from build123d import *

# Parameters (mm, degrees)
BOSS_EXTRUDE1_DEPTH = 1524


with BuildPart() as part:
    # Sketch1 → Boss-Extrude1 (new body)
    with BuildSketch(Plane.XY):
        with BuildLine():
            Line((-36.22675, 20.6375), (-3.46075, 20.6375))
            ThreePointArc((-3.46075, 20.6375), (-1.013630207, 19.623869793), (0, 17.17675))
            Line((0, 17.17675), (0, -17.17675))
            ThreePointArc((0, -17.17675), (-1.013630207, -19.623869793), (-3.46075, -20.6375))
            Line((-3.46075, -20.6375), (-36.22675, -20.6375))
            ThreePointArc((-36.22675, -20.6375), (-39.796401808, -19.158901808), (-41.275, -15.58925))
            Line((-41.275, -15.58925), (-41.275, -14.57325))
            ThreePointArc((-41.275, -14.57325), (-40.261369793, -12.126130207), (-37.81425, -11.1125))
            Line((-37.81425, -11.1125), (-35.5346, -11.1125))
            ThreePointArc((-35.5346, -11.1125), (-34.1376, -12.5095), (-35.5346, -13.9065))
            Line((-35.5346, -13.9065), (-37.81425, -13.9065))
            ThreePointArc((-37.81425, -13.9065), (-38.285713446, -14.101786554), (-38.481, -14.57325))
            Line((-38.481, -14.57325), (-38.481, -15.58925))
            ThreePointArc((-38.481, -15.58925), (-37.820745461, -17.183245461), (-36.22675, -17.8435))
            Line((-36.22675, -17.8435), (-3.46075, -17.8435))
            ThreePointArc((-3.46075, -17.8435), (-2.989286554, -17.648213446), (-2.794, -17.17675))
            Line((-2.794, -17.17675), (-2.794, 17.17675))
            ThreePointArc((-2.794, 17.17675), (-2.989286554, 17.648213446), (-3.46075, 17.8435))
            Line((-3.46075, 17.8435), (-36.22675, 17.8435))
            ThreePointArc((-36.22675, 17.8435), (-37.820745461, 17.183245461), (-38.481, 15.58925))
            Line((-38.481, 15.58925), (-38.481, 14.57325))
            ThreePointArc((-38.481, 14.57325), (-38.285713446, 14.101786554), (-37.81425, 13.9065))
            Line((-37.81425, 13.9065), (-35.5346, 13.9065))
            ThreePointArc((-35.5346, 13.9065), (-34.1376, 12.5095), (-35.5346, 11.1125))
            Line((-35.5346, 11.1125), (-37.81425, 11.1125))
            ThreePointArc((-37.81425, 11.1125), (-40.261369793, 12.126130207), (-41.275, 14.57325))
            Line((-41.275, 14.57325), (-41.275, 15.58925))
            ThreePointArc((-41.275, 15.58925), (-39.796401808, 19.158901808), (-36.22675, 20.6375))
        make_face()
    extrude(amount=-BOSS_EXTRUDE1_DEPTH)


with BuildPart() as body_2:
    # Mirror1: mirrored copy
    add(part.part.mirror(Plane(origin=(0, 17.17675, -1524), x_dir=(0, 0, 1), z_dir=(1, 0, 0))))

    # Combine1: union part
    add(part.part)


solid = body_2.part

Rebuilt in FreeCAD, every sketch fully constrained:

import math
import FreeCAD as App
import Part
import Sketcher

V = App.Vector
Q = App.Units.Quantity

doc = App.newDocument("Part")
body = doc.addObject("PartDesign::Body", "Body")

sketch1 = body.newObject("Sketcher::SketchObject", "Sketch")
sketch1.AttachmentSupport = (doc.getObject("XY_Plane"), [""])
sketch1.MapMode = "FlatFace"
sketch1.addGeometry(Part.LineSegment(V(-3.5, 20.6, 0), V(-36.2, 20.6, 0)), False)
sketch1.addGeometry(Part.ArcOfCircle(Part.Circle(V(-36.2, 15.6, 0), V(0, 0, 1), 5), math.radians(90), math.radians(180)), False)
sketch1.addGeometry(Part.LineSegment(V(-41.3, 15.6, 0), V(-41.3, 14.6, 0)), False)
sketch1.addGeometry(Part.ArcOfCircle(Part.Circle(V(-37.8, 14.6, 0), V(0, 0, 1), 3.5), math.radians(180), math.radians(270)), False)
sketch1.addGeometry(Part.LineSegment(V(-37.8, 11.1, 0), V(-35.5, 11.1, 0)), False)
sketch1.addGeometry(Part.ArcOfCircle(Part.Circle(V(-35.5, 12.5, 0), V(0, 0, 1), 1.4), math.radians(-90), math.radians(90)), False)
sketch1.addGeometry(Part.LineSegment(V(-35.5, 13.9, 0), V(-37.8, 13.9, 0)), False)
sketch1.addGeometry(Part.ArcOfCircle(Part.Circle(V(-37.8, 14.6, 0), V(0, 0, 1), 0.7), math.radians(-180), math.radians(-90)), False)
sketch1.addGeometry(Part.LineSegment(V(-38.5, 14.6, 0), V(-38.5, 15.6, 0)), False)
sketch1.addGeometry(Part.ArcOfCircle(Part.Circle(V(-36.2, 15.6, 0), V(0, 0, 1), 2.3), math.radians(90), math.radians(180)), False)
sketch1.addGeometry(Part.LineSegment(V(-36.2, 17.8, 0), V(-3.5, 17.8, 0)), False)
sketch1.addGeometry(Part.ArcOfCircle(Part.Circle(V(-3.5, 17.2, 0), V(0, 0, 1), 0.7), math.radians(0), math.radians(90)), False)
sketch1.addGeometry(Part.LineSegment(V(-2.8, 17.2, 0), V(-2.8, -17.2, 0)), False)
sketch1.addGeometry(Part.ArcOfCircle(Part.Circle(V(-3.5, -17.2, 0), V(0, 0, 1), 0.7), math.radians(-90), math.radians(0)), False)
sketch1.addGeometry(Part.LineSegment(V(-3.5, -17.8, 0), V(-36.2, -17.8, 0)), False)
sketch1.addGeometry(Part.ArcOfCircle(Part.Circle(V(-36.2, -15.6, 0), V(0, 0, 1), 2.3), math.radians(-180), math.radians(-90)), False)
sketch1.addGeometry(Part.LineSegment(V(-38.5, -15.6, 0), V(-38.5, -14.6, 0)), False)
sketch1.addGeometry(Part.ArcOfCircle(Part.Circle(V(-37.8, -14.6, 0), V(0, 0, 1), 0.7), math.radians(90), math.radians(180)), False)
sketch1.addGeometry(Part.LineSegment(V(-37.8, -13.9, 0), V(-35.5, -13.9, 0)), False)
sketch1.addGeometry(Part.ArcOfCircle(Part.Circle(V(-35.5, -12.5, 0), V(0, 0, 1), 1.4), math.radians(-90), math.radians(90)), False)
sketch1.addGeometry(Part.LineSegment(V(-35.5, -11.1, 0), V(-37.8, -11.1, 0)), False)
sketch1.addGeometry(Part.ArcOfCircle(Part.Circle(V(-37.8, -14.6, 0), V(0, 0, 1), 3.5), math.radians(90), math.radians(180)), False)
sketch1.addGeometry(Part.LineSegment(V(-41.3, -14.6, 0), V(-41.3, -15.6, 0)), False)
sketch1.addGeometry(Part.ArcOfCircle(Part.Circle(V(-36.2, -15.6, 0), V(0, 0, 1), 5), math.radians(180), math.radians(270)), False)
sketch1.addGeometry(Part.LineSegment(V(-36.2, -20.6, 0), V(-3.5, -20.6, 0)), False)
sketch1.addGeometry(Part.ArcOfCircle(Part.Circle(V(-3.5, -17.2, 0), V(0, 0, 1), 3.5), math.radians(-90), math.radians(0)), False)
sketch1.addGeometry(Part.LineSegment(V(0, -17.2, 0), V(0, 17.2, 0)), False)
sketch1.addGeometry(Part.ArcOfCircle(Part.Circle(V(-3.5, 17.2, 0), V(0, 0, 1), 3.5), math.radians(0), math.radians(90)), False)
sketch1.addConstraint(Sketcher.Constraint("Tangent", 0, 2, 1, 1))
sketch1.addConstraint(Sketcher.Constraint("Tangent", 1, 2, 2, 1))
sketch1.addConstraint(Sketcher.Constraint("Tangent", 2, 2, 3, 1))
sketch1.addConstraint(Sketcher.Constraint("Tangent", 3, 2, 4, 1))
sketch1.addConstraint(Sketcher.Constraint("Tangent", 4, 2, 5, 1))
sketch1.addConstraint(Sketcher.Constraint("Tangent", 5, 2, 6, 1))
sketch1.addConstraint(Sketcher.Constraint("Tangent", 6, 2, 7, 2))
sketch1.addConstraint(Sketcher.Constraint("Tangent", 7, 1, 8, 1))
sketch1.addConstraint(Sketcher.Constraint("Tangent", 8, 2, 9, 2))
sketch1.addConstraint(Sketcher.Constraint("Tangent", 9, 1, 10, 1))
sketch1.addConstraint(Sketcher.Constraint("Tangent", 10, 2, 11, 2))
sketch1.addConstraint(Sketcher.Constraint("Tangent", 11, 1, 12, 1))
sketch1.addConstraint(Sketcher.Constraint("Tangent", 12, 2, 13, 2))
sketch1.addConstraint(Sketcher.Constraint("Tangent", 13, 1, 14, 1))
sketch1.addConstraint(Sketcher.Constraint("Tangent", 14, 2, 15, 2))
sketch1.addConstraint(Sketcher.Constraint("Tangent", 15, 1, 16, 1))
sketch1.addConstraint(Sketcher.Constraint("Tangent", 16, 2, 17, 2))
sketch1.addConstraint(Sketcher.Constraint("Tangent", 17, 1, 18, 1))
sketch1.addConstraint(Sketcher.Constraint("Tangent", 18, 2, 19, 1))
sketch1.addConstraint(Sketcher.Constraint("Tangent", 19, 2, 20, 1))
sketch1.addConstraint(Sketcher.Constraint("Tangent", 20, 2, 21, 1))
sketch1.addConstraint(Sketcher.Constraint("Tangent", 21, 2, 22, 1))
sketch1.addConstraint(Sketcher.Constraint("Tangent", 22, 2, 23, 1))
sketch1.addConstraint(Sketcher.Constraint("Tangent", 23, 2, 24, 1))
sketch1.addConstraint(Sketcher.Constraint("Tangent", 24, 2, 25, 1))
sketch1.addConstraint(Sketcher.Constraint("Tangent", 25, 2, 26, 1))
sketch1.addConstraint(Sketcher.Constraint("Tangent", 26, 2, 27, 1))
sketch1.addConstraint(Sketcher.Constraint("Tangent", 27, 2, 0, 1))
sketch1.addConstraint(Sketcher.Constraint("Horizontal", 0))
sketch1.addConstraint(Sketcher.Constraint("Vertical", 2))
sketch1.addConstraint(Sketcher.Constraint("Horizontal", 4))
sketch1.addConstraint(Sketcher.Constraint("Horizontal", 6))
sketch1.addConstraint(Sketcher.Constraint("Vertical", 8))
sketch1.addConstraint(Sketcher.Constraint("Horizontal", 10))
sketch1.addConstraint(Sketcher.Constraint("Vertical", 12))
sketch1.addConstraint(Sketcher.Constraint("Horizontal", 14))
sketch1.addConstraint(Sketcher.Constraint("Vertical", 16))
sketch1.addConstraint(Sketcher.Constraint("Horizontal", 18))
sketch1.addConstraint(Sketcher.Constraint("Horizontal", 20))
sketch1.addConstraint(Sketcher.Constraint("Vertical", 22))
sketch1.addConstraint(Sketcher.Constraint("Horizontal", 24))
sketch1.addConstraint(Sketcher.Constraint("Vertical", 26))
sketch1.addConstraint(Sketcher.Constraint("Coincident", 7, 3, 3, 3))
sketch1.addConstraint(Sketcher.Constraint("Coincident", 9, 3, 1, 3))
sketch1.addConstraint(Sketcher.Constraint("Coincident", 21, 3, 17, 3))
sketch1.addConstraint(Sketcher.Constraint("Coincident", 23, 3, 15, 3))
sketch1.addConstraint(Sketcher.Constraint("Coincident", 25, 3, 13, 3))
sketch1.addConstraint(Sketcher.Constraint("Coincident", 27, 3, 11, 3))
sketch1.addConstraint(Sketcher.Constraint("Equal", 7, 11))
sketch1.addConstraint(Sketcher.Constraint("Equal", 11, 13))
sketch1.addConstraint(Sketcher.Constraint("Equal", 9, 15))
sketch1.addConstraint(Sketcher.Constraint("Equal", 13, 17))
sketch1.addConstraint(Sketcher.Constraint("Symmetric", 25, 2, 26, 2, -1, 1))
sketch1.addConstraint(Sketcher.Constraint("Symmetric", 3, 3, 17, 3, -1))
sketch1.addConstraint(Sketcher.Constraint("Vertical", 5, 3, 19, 3))
sketch1.addConstraint(Sketcher.Constraint("Radius", 5, Q("0.055 in")))
sketch1.addConstraint(Sketcher.Constraint("DistanceX", 0, 2, 0, 1, Q("1.29 in")))
sketch1.addConstraint(Sketcher.Constraint("DistanceY", 2, 2, 2, 1, Q("0.04 in")))
sketch1.addConstraint(Sketcher.Constraint("DistanceY", 13, 3, 9, 3, Q("1.29 in")))
sketch1.addConstraint(Sketcher.Constraint("DistanceY", 5, 3, 0, 2, Q("0.32 in")))
sketch1.addConstraint(Sketcher.Constraint("DistanceY", 12, 2, 12, 1, Q("1.3525 in")))
sketch1.addConstraint(Sketcher.Constraint("DistanceX", 5, 3, -1, 1, Q("1.399 in")))
pad1 = body.newObject("PartDesign::Pad", "Pad")
pad1.Profile = sketch1
pad1.Length = Q("60 in")
pad1.Reversed = True
body2 = doc.addObject("PartDesign::Body", "Body001")
doc.recompute()

mirroring = doc.addObject("Part::Mirroring", "Mirroring")
mirroring.Source = body
mirroring.Base = V(0, 17.17675, -1524)
mirroring.Normal = V(1, 0, 0)
body2.BaseFeature = mirroring
doc.recompute()

boolean = body2.newObject("PartDesign::Boolean", "Boolean")
boolean.Type = "Fuse"
boolean.addObjects([body])
mirroring.Visibility = False

doc.recompute()
